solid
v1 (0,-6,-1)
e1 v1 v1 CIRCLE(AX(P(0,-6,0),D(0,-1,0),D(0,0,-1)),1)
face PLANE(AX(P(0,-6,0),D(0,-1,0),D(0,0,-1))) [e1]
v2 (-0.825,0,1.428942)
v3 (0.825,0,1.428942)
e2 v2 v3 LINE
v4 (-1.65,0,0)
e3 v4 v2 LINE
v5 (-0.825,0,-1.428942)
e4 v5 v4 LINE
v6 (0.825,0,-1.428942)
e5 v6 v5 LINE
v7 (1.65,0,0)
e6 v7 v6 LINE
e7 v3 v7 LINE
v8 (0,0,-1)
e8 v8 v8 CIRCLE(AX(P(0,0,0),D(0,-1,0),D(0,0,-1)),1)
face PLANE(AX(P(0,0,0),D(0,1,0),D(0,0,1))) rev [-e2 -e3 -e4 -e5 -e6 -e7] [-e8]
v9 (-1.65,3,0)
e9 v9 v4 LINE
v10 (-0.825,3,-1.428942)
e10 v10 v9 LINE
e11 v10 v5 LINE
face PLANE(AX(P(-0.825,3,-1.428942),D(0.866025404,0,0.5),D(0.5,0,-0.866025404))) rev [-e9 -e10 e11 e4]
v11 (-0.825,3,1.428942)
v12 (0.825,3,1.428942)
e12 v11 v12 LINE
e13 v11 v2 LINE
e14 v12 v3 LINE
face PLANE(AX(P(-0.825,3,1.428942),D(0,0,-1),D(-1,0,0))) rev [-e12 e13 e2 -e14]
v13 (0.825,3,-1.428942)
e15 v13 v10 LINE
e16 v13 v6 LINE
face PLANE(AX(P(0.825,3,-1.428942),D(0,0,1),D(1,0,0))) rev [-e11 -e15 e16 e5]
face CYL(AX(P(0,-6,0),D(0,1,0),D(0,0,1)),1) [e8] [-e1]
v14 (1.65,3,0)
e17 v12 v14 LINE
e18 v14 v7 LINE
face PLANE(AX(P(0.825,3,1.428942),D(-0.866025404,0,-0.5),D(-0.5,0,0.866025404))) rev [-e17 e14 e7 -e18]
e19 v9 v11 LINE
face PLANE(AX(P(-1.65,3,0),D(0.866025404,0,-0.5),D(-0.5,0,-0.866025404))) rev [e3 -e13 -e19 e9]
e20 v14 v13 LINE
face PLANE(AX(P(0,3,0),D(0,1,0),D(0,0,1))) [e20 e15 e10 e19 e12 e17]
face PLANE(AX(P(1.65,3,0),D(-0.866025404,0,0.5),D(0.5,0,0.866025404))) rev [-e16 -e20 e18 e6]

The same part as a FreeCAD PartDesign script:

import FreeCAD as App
import Part
import Sketcher
from FreeCAD import Vector
Q = App.Units.Quantity


def add_polygon(sketch, points):
    """Adds a closed chain of lines whose ends are joined by coincident constraints."""
    first, n = sketch.GeometryCount, len(points)
    for a, b in zip(points, points[1:] + points[:1]):
        sketch.addGeometry(Part.LineSegment(App.Vector(*a, 0), App.Vector(*b, 0)), False)
    for i in range(n):
        sketch.addConstraint(Sketcher.Constraint("Coincident", first + i, 2, first + (i + 1) % n, 1))

doc = App.newDocument("Part")
body = doc.addObject("PartDesign::Body", "Body")

# Sketch on XZ plane
sketch1 = body.newObject("Sketcher::SketchObject", "Sketch")
sketch1.AttachmentSupport = (doc.getObject("XZ_Plane"), [""])
sketch1.MapMode = "FlatFace"
add_polygon(sketch1, [(1.6, 0), (0.8, -1.4), (-0.8, -1.4), (-1.6, 0), (-0.8, 1.4), (0.8, 1.4)])  # lines 0-5
sketch1.addConstraint([
    Sketcher.Constraint("Horizontal", 1),
    Sketcher.Constraint("Horizontal", 4),
    Sketcher.Constraint("Symmetric", 0, 2, 3, 2, -1, 1),
    Sketcher.Constraint("Symmetric", 2, 2, 5, 2, -1, 1),
    Sketcher.Constraint("PointOnObject", 2, 2, -1),
    Sketcher.Constraint("Parallel", 2, 5),
    Sketcher.Constraint("Vertical", 1, 2, 3, 2),
    Sketcher.Constraint("Angle", 0, Q("-120 deg")),
    Sketcher.Constraint("DistanceX", 1, 2, 1, 1, Q("1.65 mm")),
    Sketcher.Constraint("DistanceX", 2, 2, 5, 2, Q("3.3 mm")),
])
pad1 = body.newObject("PartDesign::Pad", "Pad")
pad1.Profile = sketch1
pad1.Length = 3
pad1.Reversed = True

# Sketch on XZ plane
sketch2 = body.newObject("Sketcher::SketchObject", "Sketch001")
sketch2.AttachmentSupport = (doc.getObject("XZ_Plane"), [""])
sketch2.MapMode = "FlatFace"
sketch2.addGeometry(Part.Circle(Vector(0, 0, 0), Vector(0, 0, 1), 1), False)
sketch2.addConstraint([
    Sketcher.Constraint("Coincident", 0, 3, -1, 1),
    Sketcher.Constraint("Diameter", 0, Q("2 mm")),
])
pad2 = body.newObject("PartDesign::Pad", "Pad001")
pad2.Profile = sketch2
pad2.Length = 6

doc.recompute()
